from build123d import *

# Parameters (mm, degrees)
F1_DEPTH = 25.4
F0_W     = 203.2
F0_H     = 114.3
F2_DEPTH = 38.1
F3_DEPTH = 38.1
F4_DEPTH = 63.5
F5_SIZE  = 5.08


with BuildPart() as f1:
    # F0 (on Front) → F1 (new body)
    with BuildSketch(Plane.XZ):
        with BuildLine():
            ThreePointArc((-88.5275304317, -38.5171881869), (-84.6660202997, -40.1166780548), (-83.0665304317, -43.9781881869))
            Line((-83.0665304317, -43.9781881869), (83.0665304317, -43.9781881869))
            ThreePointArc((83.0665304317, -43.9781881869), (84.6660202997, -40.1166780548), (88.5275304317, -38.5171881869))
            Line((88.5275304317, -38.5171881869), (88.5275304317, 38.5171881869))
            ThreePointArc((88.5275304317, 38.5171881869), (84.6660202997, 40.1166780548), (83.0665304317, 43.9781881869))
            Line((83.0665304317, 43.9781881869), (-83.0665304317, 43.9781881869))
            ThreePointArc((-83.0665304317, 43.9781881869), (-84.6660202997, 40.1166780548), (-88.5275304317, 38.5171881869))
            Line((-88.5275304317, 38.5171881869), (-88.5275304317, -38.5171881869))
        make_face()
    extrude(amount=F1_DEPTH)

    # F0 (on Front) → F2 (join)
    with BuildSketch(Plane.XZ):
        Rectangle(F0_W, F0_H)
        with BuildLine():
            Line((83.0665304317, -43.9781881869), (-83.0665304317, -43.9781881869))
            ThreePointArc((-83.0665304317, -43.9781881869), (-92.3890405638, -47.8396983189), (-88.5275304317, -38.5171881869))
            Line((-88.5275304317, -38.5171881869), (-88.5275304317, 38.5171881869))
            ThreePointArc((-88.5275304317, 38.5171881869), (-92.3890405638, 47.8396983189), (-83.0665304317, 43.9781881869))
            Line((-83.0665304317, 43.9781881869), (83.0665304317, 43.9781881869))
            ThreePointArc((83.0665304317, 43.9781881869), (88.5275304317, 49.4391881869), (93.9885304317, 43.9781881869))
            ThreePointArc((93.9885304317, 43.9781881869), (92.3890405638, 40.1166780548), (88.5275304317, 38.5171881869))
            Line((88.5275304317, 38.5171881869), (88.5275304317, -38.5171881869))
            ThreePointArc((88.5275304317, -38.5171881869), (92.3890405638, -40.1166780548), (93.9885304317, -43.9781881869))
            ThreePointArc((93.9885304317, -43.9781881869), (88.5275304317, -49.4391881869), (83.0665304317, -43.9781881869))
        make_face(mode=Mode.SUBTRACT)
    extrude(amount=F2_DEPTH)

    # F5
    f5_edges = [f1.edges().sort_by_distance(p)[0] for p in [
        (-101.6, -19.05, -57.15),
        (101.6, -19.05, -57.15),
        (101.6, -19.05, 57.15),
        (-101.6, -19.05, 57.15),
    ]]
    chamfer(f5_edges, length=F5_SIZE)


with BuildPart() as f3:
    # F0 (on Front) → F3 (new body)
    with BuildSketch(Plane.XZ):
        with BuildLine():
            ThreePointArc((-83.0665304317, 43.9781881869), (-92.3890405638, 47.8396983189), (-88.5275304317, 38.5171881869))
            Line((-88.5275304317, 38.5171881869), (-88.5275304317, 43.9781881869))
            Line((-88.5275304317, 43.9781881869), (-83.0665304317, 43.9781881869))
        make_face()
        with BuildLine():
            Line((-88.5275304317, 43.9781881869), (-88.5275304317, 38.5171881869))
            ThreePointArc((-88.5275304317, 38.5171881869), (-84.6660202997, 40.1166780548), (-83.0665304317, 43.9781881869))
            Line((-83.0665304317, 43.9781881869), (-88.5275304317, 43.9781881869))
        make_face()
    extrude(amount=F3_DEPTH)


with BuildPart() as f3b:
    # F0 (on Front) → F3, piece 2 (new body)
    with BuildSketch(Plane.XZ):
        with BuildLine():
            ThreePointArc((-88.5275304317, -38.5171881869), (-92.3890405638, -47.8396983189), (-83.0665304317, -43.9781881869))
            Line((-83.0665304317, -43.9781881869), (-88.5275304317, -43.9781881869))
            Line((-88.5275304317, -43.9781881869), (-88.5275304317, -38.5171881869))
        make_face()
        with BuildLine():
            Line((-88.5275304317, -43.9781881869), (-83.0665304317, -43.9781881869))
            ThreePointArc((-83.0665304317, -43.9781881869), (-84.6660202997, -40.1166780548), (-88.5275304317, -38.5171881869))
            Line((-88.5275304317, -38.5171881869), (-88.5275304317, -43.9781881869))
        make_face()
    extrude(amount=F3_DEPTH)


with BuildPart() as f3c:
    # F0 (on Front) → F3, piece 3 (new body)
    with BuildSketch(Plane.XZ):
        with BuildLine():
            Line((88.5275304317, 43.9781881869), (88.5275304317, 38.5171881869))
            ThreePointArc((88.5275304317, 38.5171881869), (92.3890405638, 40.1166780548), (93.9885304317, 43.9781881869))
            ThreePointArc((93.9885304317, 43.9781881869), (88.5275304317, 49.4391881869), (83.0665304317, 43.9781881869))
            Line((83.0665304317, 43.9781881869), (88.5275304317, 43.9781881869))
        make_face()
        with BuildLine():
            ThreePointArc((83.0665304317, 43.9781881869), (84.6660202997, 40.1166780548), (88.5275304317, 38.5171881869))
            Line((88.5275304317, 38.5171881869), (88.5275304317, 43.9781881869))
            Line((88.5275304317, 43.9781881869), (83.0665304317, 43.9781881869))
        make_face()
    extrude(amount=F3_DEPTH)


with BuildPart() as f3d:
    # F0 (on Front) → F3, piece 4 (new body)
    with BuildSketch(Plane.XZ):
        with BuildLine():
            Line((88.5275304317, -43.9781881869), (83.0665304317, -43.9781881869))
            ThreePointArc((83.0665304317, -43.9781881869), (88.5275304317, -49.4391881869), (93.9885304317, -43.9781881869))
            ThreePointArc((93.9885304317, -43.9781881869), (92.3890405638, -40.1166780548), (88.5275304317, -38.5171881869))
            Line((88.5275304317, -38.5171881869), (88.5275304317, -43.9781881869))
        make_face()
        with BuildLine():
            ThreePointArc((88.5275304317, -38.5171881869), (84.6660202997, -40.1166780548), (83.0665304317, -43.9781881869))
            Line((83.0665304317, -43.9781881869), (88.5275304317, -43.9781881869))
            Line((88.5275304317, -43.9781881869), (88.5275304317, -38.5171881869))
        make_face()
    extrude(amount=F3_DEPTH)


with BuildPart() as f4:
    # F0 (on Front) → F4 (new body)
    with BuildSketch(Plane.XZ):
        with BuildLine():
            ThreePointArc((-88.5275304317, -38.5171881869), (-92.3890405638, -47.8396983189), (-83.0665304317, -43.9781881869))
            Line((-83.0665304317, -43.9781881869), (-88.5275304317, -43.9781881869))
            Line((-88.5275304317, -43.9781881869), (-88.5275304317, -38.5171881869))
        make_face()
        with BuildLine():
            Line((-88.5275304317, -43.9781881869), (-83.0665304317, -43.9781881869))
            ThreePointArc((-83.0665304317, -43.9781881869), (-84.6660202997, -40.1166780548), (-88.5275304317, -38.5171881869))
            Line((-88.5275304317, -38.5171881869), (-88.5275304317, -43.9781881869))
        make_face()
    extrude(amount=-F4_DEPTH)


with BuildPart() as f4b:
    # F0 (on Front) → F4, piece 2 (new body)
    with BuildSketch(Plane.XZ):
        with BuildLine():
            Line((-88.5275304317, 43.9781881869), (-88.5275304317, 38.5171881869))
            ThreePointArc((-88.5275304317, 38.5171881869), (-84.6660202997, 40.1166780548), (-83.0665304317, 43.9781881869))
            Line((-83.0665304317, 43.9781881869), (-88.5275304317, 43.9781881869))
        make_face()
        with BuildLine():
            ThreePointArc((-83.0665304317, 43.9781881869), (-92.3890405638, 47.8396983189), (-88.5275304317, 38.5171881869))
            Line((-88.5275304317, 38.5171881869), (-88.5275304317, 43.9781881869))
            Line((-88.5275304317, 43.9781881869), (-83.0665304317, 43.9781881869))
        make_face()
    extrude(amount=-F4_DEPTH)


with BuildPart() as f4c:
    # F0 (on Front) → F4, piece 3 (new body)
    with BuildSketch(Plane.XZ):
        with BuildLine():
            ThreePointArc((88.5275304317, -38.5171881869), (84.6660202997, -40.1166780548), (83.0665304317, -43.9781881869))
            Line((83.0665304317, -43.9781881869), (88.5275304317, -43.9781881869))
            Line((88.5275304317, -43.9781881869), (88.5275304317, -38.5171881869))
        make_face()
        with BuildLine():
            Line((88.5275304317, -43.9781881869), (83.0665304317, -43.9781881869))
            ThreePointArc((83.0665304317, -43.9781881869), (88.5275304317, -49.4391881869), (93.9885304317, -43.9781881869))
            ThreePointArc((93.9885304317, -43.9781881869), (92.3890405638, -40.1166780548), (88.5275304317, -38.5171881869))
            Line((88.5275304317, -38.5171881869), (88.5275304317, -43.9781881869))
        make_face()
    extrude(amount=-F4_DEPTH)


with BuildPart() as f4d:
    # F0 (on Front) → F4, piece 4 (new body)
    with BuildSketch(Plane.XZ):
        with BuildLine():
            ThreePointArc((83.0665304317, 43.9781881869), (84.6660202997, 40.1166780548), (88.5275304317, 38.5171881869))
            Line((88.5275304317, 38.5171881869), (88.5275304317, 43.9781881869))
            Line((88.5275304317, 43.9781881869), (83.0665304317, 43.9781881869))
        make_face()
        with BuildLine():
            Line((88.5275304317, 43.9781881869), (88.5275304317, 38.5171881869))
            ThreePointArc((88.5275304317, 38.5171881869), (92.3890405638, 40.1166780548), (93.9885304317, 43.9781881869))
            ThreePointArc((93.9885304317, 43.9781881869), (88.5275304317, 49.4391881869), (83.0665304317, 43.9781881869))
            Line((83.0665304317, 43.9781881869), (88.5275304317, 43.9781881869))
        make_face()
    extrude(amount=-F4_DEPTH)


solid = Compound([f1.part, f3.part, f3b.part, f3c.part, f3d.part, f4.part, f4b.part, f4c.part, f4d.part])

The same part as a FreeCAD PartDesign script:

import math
import FreeCAD as App
import Part
import Sketcher
from FreeCAD import Vector
Q = App.Units.Quantity


def edges_at(feature, points):
    """Names of the edges that pass closest to the given points."""
    edges = feature.Shape.Edges
    near = lambda p: min(range(len(edges)), key=lambda i: edges[i].distToShape(Part.Vertex(*p))[0])
    return sorted({f"Edge{near(p) + 1}" for p in points})


def add_polygon(sketch, points):
    """Adds a closed chain of lines whose ends are joined by coincident constraints."""
    first, n = sketch.GeometryCount, len(points)
    for a, b in zip(points, points[1:] + points[:1]):
        sketch.addGeometry(Part.LineSegment(App.Vector(*a, 0), App.Vector(*b, 0)), False)
    for i in range(n):
        sketch.addConstraint(Sketcher.Constraint("Coincident", first + i, 2, first + (i + 1) % n, 1))

doc = App.newDocument("Part")
body = doc.addObject("PartDesign::Body", "Body")

# Sketch on XZ plane
sketch1 = body.newObject("Sketcher::SketchObject", "Sketch")
sketch1.AttachmentSupport = (doc.getObject("XZ_Plane"), [""])
sketch1.MapMode = "FlatFace"
sketch1.addGeometry(Part.ArcOfCircle(Part.Circle(Vector(-89, -44, 0), Vector(0, 0, 1), 5), math.radians(0), math.radians(90)), False)
sketch1.addGeometry(Part.LineSegment(Vector(-83, -44, 0), Vector(83, -44, 0)), False)
sketch1.addGeometry(Part.ArcOfCircle(Part.Circle(Vector(89, -44, 0), Vector(0, 0, 1), 5), math.radians(90), math.radians(180)), False)
sketch1.addGeometry(Part.LineSegment(Vector(89, -39, 0), Vector(89, 39, 0)), False)
sketch1.addGeometry(Part.ArcOfCircle(Part.Circle(Vector(89, 44, 0), Vector(0, 0, 1), 5), math.radians(180), math.radians(270)), False)
sketch1.addGeometry(Part.LineSegment(Vector(83, 44, 0), Vector(-83, 44, 0)), False)
sketch1.addGeometry(Part.ArcOfCircle(Part.Circle(Vector(-89, 44, 0), Vector(0, 0, 1), 5), math.radians(-90), math.radians(0)), False)
sketch1.addGeometry(Part.LineSegment(Vector(-89, 39, 0), Vector(-89, -39, 0)), False)
sketch1.addConstraint(Sketcher.Constraint("Coincident", 0, 1, 1, 1))
sketch1.addConstraint(Sketcher.Constraint("Coincident", 1, 2, 2, 2))
sketch1.addConstraint(Sketcher.Constraint("Coincident", 2, 1, 3, 1))
sketch1.addConstraint(Sketcher.Constraint("Coincident", 3, 2, 4, 2))
sketch1.addConstraint(Sketcher.Constraint("Coincident", 4, 1, 5, 1))
sketch1.addConstraint(Sketcher.Constraint("Coincident", 5, 2, 6, 2))
sketch1.addConstraint(Sketcher.Constraint("Coincident", 6, 1, 7, 1))
sketch1.addConstraint(Sketcher.Constraint("Coincident", 7, 2, 0, 2))
sketch1.addConstraint(Sketcher.Constraint("Horizontal", 1))
sketch1.addConstraint(Sketcher.Constraint("Vertical", 3))
sketch1.addConstraint(Sketcher.Constraint("Horizontal", 5))
sketch1.addConstraint(Sketcher.Constraint("Vertical", 7))
sketch1.addConstraint(Sketcher.Constraint("Equal", 0, 2))
sketch1.addConstraint(Sketcher.Constraint("Equal", 2, 4))
sketch1.addConstraint(Sketcher.Constraint("Equal", 4, 6))
sketch1.addConstraint(Sketcher.Constraint("Symmetric", 0, 3, 4, 3, -1, 1))
sketch1.addConstraint(Sketcher.Constraint("Symmetric", 2, 3, 6, 3, -1, 1))
sketch1.addConstraint(Sketcher.Constraint("Symmetric", 0, 3, 2, 3, -2))
sketch1.addConstraint(Sketcher.Constraint("Horizontal", 2, 3, 0, 1))
sketch1.addConstraint(Sketcher.Constraint("Horizontal", 6, 3, 4, 1))
sketch1.addConstraint(Sketcher.Constraint("Vertical", 4, 3, 2, 1))
sketch1.addConstraint(Sketcher.Constraint("Vertical", 0, 3, 6, 1))
sketch1.addConstraint(Sketcher.Constraint("Radius", 0, Q("0.215 in")))
sketch1.addConstraint(Sketcher.Constraint("DistanceX", 1, 1, 1, 2, 166.133061))
sketch1.addConstraint(Sketcher.Constraint("DistanceY", 3, 1, 3, 2, 77.034376))
pad1 = body.newObject("PartDesign::Pad", "Pad")
pad1.Profile = sketch1
pad1.Length = Q("1 in")

# Sketch on XZ plane
sketch2 = body.newObject("Sketcher::SketchObject", "Sketch001")
sketch2.AttachmentSupport = (doc.getObject("XZ_Plane"), [""])
sketch2.MapMode = "FlatFace"
add_polygon(sketch2, [(-102, 57), (-102, -57), (102, -57), (102, 57)])  # lines 0-3
sketch2.addGeometry(Part.ArcOfCircle(Part.Circle(Vector(89, -44, 0), Vector(0, 0, 1), 5), math.radians(180), math.radians(360)), False)  # 4
sketch2.addGeometry(Part.LineSegment(Vector(83, -44, 0), Vector(-83, -44, 0)), False)  # 5
sketch2.addGeometry(Part.ArcOfCircle(Part.Circle(Vector(-89, -44, 0), Vector(0, 0, 1), 5), math.radians(90), math.radians(360)), False)  # 6
sketch2.addGeometry(Part.LineSegment(Vector(-89, -39, 0), Vector(-89, 39, 0)), False)  # 7
sketch2.addGeometry(Part.ArcOfCircle(Part.Circle(Vector(-89, 44, 0), Vector(0, 0, 1), 5), math.radians(0), math.radians(270)), False)  # 8
sketch2.addGeometry(Part.LineSegment(Vector(-83, 44, 0), Vector(83, 44, 0)), False)  # 9
sketch2.addGeometry(Part.ArcOfCircle(Part.Circle(Vector(89, 44, 0), Vector(0, 0, 1), 5), math.radians(0), math.radians(180)), False)  # 10
sketch2.addGeometry(Part.ArcOfCircle(Part.Circle(Vector(89, 44, 0), Vector(0, 0, 1), 5), math.radians(-90), math.radians(0)), False)  # 11
sketch2.addGeometry(Part.LineSegment(Vector(89, 39, 0), Vector(89, -39, 0)), False)  # 12
sketch2.addGeometry(Part.ArcOfCircle(Part.Circle(Vector(89, -44, 0), Vector(0, 0, 1), 5), math.radians(0), math.radians(90)), False)  # 13
sketch2.addConstraint(Sketcher.Constraint("Coincident", 4, 1, 5, 1))
sketch2.addConstraint(Sketcher.Constraint("Coincident", 5, 2, 6, 2))
sketch2.addConstraint(Sketcher.Constraint("Coincident", 6, 1, 7, 1))
sketch2.addConstraint(Sketcher.Constraint("Coincident", 7, 2, 8, 2))
sketch2.addConstraint(Sketcher.Constraint("Coincident", 8, 1, 9, 1))
sketch2.addConstraint(Sketcher.Constraint("Coincident", 9, 2, 10, 2))
sketch2.addConstraint(Sketcher.Constraint("Tangent", 10, 1, 11, 2))
sketch2.addConstraint(Sketcher.Constraint("Coincident", 11, 1, 12, 1))
sketch2.addConstraint(Sketcher.Constraint("Coincident", 12, 2, 13, 2))
sketch2.addConstraint(Sketcher.Constraint("Tangent", 13, 1, 4, 2))
sketch2.addConstraint(Sketcher.Constraint("Vertical", 0))
sketch2.addConstraint(Sketcher.Constraint("Horizontal", 1))
sketch2.addConstraint(Sketcher.Constraint("Vertical", 2))
sketch2.addConstraint(Sketcher.Constraint("Horizontal", 3))
sketch2.addConstraint(Sketcher.Constraint("Horizontal", 5))
sketch2.addConstraint(Sketcher.Constraint("Vertical", 7))
sketch2.addConstraint(Sketcher.Constraint("Horizontal", 9))
sketch2.addConstraint(Sketcher.Constraint("Vertical", 12))
sketch2.addConstraint(Sketcher.Constraint("Equal", 4, 6))
sketch2.addConstraint(Sketcher.Constraint("Equal", 6, 8))
sketch2.addConstraint(Sketcher.Constraint("Equal", 8, 10))
sketch2.addConstraint(Sketcher.Constraint("Equal", 10, 11))
sketch2.addConstraint(Sketcher.Constraint("Equal", 11, 13))
sketch2.addConstraint(Sketcher.Constraint("Symmetric", 4, 3, 8, 3, -1, 1))
sketch2.addConstraint(Sketcher.Constraint("Symmetric", 6, 3, 10, 3, -1, 1))
sketch2.addConstraint(Sketcher.Constraint("Symmetric", 0, 2, 2, 2, -1, 1))
sketch2.addConstraint(Sketcher.Constraint("Symmetric", 4, 3, 6, 3, -2))
sketch2.addConstraint(Sketcher.Constraint("Horizontal", 13, 3, 4, 1))
sketch2.addConstraint(Sketcher.Constraint("Horizontal", 11, 3, 8, 1))
sketch2.addConstraint(Sketcher.Constraint("Horizontal", 9, 2, 10, 1))
sketch2.addConstraint(Sketcher.Constraint("Horizontal", 5, 2, 13, 1))
sketch2.addConstraint(Sketcher.Constraint("Vertical", 8, 3, 6, 1))
sketch2.addConstraint(Sketcher.Constraint("Vertical", 13, 3, 11, 1))
sketch2.addConstraint(Sketcher.Constraint("DistanceX", 1, 1, 1, 2, Q("8 in")))
sketch2.addConstraint(Sketcher.Constraint("DistanceY", 0, 2, 0, 1, Q("4.5 in")))
sketch2.addConstraint(Sketcher.Constraint("Radius", 4, Q("0.215 in")))
sketch2.addConstraint(Sketcher.Constraint("DistanceX", 5, 2, 5, 1, 166.133061))
sketch2.addConstraint(Sketcher.Constraint("DistanceY", 7, 1, 7, 2, 77.034376))
pad2 = body.newObject("PartDesign::Pad", "Pad001")
pad2.Profile = sketch2
pad2.Length = Q("1.5 in")
doc.recompute()

chamfer = body.newObject("PartDesign::Chamfer", "Chamfer")
chamfer.Base = (pad2, edges_at(pad2, [
    (-101.6, -19.05, -57.15),
    (101.6, -19.05, -57.15),
    (101.6, -19.05, 57.15),
    (-101.6, -19.05, 57.15),
]))
chamfer.Size = Q("0.2 in")
body2 = doc.addObject("PartDesign::Body", "Body001")

# Sketch on XZ plane
sketch3 = body2.newObject("Sketcher::SketchObject", "Sketch002")
sketch3.AttachmentSupport = (doc.getObject("XZ_Plane001"), [""])
sketch3.MapMode = "FlatFace"
sketch3.addGeometry(Part.ArcOfCircle(Part.Circle(Vector(-89, 44, 0), Vector(0, 0, 1), 5), math.radians(0), math.radians(270)), False)
sketch3.addGeometry(Part.ArcOfCircle(Part.Circle(Vector(-89, 44, 0), Vector(0, 0, 1), 5), math.radians(-90), math.radians(0)), False)
sketch3.addConstraint(Sketcher.Constraint("Tangent", 0, 1, 1, 2))
sketch3.addConstraint(Sketcher.Constraint("Coincident", 1, 1, 0, 2))
sketch3.addConstraint(Sketcher.Constraint("Horizontal", 1, 3, 0, 1))
sketch3.addConstraint(Sketcher.Constraint("Vertical", 0, 3, 1, 1))
sketch3.addConstraint(Sketcher.Constraint("Radius", 0, Q("0.215 in")))
sketch3.addConstraint(Sketcher.Constraint("DistanceX", 0, 3, -1, 1, 88.52753))
sketch3.addConstraint(Sketcher.Constraint("DistanceY", -1, 1, 0, 3, 43.978188))
pad3 = body2.newObject("PartDesign::Pad", "Pad002")
pad3.Profile = sketch3
pad3.Length = Q("1.5 in")
body3 = doc.addObject("PartDesign::Body", "Body002")

# Sketch on XZ plane
sketch4 = body3.newObject("Sketcher::SketchObject", "Sketch003")
sketch4.AttachmentSupport = (doc.getObject("XZ_Plane002"), [""])
sketch4.MapMode = "FlatFace"
sketch4.addGeometry(Part.ArcOfCircle(Part.Circle(Vector(-89, -44, 0), Vector(0, 0, 1), 5), math.radians(90), math.radians(360)), False)
sketch4.addGeometry(Part.ArcOfCircle(Part.Circle(Vector(-89, -44, 0), Vector(0, 0, 1), 5), math.radians(0), math.radians(90)), False)
sketch4.addConstraint(Sketcher.Constraint("Tangent", 0, 1, 1, 2))
sketch4.addConstraint(Sketcher.Constraint("Coincident", 1, 1, 0, 2))
sketch4.addConstraint(Sketcher.Constraint("Horizontal", 0, 3, 1, 1))
sketch4.addConstraint(Sketcher.Constraint("Vertical", 1, 3, 0, 1))
sketch4.addConstraint(Sketcher.Constraint("Radius", 0, Q("0.215 in")))
sketch4.addConstraint(Sketcher.Constraint("DistanceX", 0, 3, -1, 1, 88.52753))
sketch4.addConstraint(Sketcher.Constraint("DistanceY", 0, 3, -1, 1, 43.978188))
pad4 = body3.newObject("PartDesign::Pad", "Pad003")
pad4.Profile = sketch4
pad4.Length = Q("1.5 in")
body4 = doc.addObject("PartDesign::Body", "Body003")

# Sketch on XZ plane
sketch5 = body4.newObject("Sketcher::SketchObject", "Sketch004")
sketch5.AttachmentSupport = (doc.getObject("XZ_Plane003"), [""])
sketch5.MapMode = "FlatFace"
sketch5.addGeometry(Part.ArcOfCircle(Part.Circle(Vector(89, 44, 0), Vector(0, 0, 1), 5), math.radians(-90), math.radians(0)), False)
sketch5.addGeometry(Part.ArcOfCircle(Part.Circle(Vector(89, 44, 0), Vector(0, 0, 1), 5), math.radians(0), math.radians(180)), False)
sketch5.addGeometry(Part.ArcOfCircle(Part.Circle(Vector(89, 44, 0), Vector(0, 0, 1), 5), math.radians(180), math.radians(270)), False)
sketch5.addConstraint(Sketcher.Constraint("Tangent", 0, 2, 1, 1))
sketch5.addConstraint(Sketcher.Constraint("Tangent", 1, 2, 2, 1))
sketch5.addConstraint(Sketcher.Constraint("Tangent", 2, 2, 0, 1))
sketch5.addConstraint(Sketcher.Constraint("Horizontal", 2, 3, 0, 2))
sketch5.addConstraint(Sketcher.Constraint("Horizontal", 0, 2, 1, 2))
sketch5.addConstraint(Sketcher.Constraint("Vertical", 1, 3, 2, 2))
sketch5.addConstraint(Sketcher.Constraint("Radius", 0, Q("0.215 in")))
sketch5.addConstraint(Sketcher.Constraint("DistanceX", -1, 1, 0, 3, 88.52753))
sketch5.addConstraint(Sketcher.Constraint("DistanceY", -1, 1, 0, 3, 43.978188))
pad5 = body4.newObject("PartDesign::Pad", "Pad004")
pad5.Profile = sketch5
pad5.Length = Q("1.5 in")
body5 = doc.addObject("PartDesign::Body", "Body004")

# Sketch on XZ plane
sketch6 = body5.newObject("Sketcher::SketchObject", "Sketch005")
sketch6.AttachmentSupport = (doc.getObject("XZ_Plane004"), [""])
sketch6.MapMode = "FlatFace"
sketch6.addGeometry(Part.ArcOfCircle(Part.Circle(Vector(89, -44, 0), Vector(0, 0, 1), 5), math.radians(180), math.radians(360)), False)
sketch6.addGeometry(Part.ArcOfCircle(Part.Circle(Vector(89, -44, 0), Vector(0, 0, 1), 5), math.radians(0), math.radians(90)), False)
sketch6.addGeometry(Part.ArcOfCircle(Part.Circle(Vector(89, -44, 0), Vector(0, 0, 1), 5), math.radians(90), math.radians(180)), False)
sketch6.addConstraint(Sketcher.Constraint("Tangent", 0, 2, 1, 1))
sketch6.addConstraint(Sketcher.Constraint("Tangent", 1, 2, 2, 1))
sketch6.addConstraint(Sketcher.Constraint("Tangent", 2, 2, 0, 1))
sketch6.addConstraint(Sketcher.Constraint("Horizontal", 2, 3, 0, 2))
sketch6.addConstraint(Sketcher.Constraint("Horizontal", 0, 2, 2, 2))
sketch6.addConstraint(Sketcher.Constraint("Vertical", 2, 3, 1, 2))
sketch6.addConstraint(Sketcher.Constraint("Radius", 0, Q("0.215 in")))
sketch6.addConstraint(Sketcher.Constraint("DistanceX", -1, 1, 0, 3, 88.52753))
sketch6.addConstraint(Sketcher.Constraint("DistanceY", 0, 3, -1, 1, 43.978188))
pad6 = body5.newObject("PartDesign::Pad", "Pad005")
pad6.Profile = sketch6
pad6.Length = Q("1.5 in")
body6 = doc.addObject("PartDesign::Body", "Body005")

# Sketch on XZ plane
sketch7 = body6.newObject("Sketcher::SketchObject", "Sketch006")
sketch7.AttachmentSupport = (doc.getObject("XZ_Plane005"), [""])
sketch7.MapMode = "FlatFace"
sketch7.addGeometry(Part.ArcOfCircle(Part.Circle(Vector(-89, -44, 0), Vector(0, 0, 1), 5), math.radians(90), math.radians(360)), False)
sketch7.addGeometry(Part.ArcOfCircle(Part.Circle(Vector(-89, -44, 0), Vector(0, 0, 1), 5), math.radians(0), math.radians(90)), False)
sketch7.addConstraint(Sketcher.Constraint("Tangent", 0, 1, 1, 2))
sketch7.addConstraint(Sketcher.Constraint("Coincident", 1, 1, 0, 2))
sketch7.addConstraint(Sketcher.Constraint("Horizontal", 0, 3, 1, 1))
sketch7.addConstraint(Sketcher.Constraint("Vertical", 1, 3, 0, 1))
sketch7.addConstraint(Sketcher.Constraint("Radius", 0, Q("0.215 in")))
sketch7.addConstraint(Sketcher.Constraint("DistanceX", 0, 3, -1, 1, 88.52753))
sketch7.addConstraint(Sketcher.Constraint("DistanceY", 0, 3, -1, 1, 43.978188))
pad7 = body6.newObject("PartDesign::Pad", "Pad006")
pad7.Profile = sketch7
pad7.Length = Q("2.5 in")
pad7.Reversed = True
body7 = doc.addObject("PartDesign::Body", "Body006")

# Sketch on XZ plane
sketch8 = body7.newObject("Sketcher::SketchObject", "Sketch007")
sketch8.AttachmentSupport = (doc.getObject("XZ_Plane006"), [""])
sketch8.MapMode = "FlatFace"
sketch8.addGeometry(Part.ArcOfCircle(Part.Circle(Vector(-89, 44, 0), Vector(0, 0, 1), 5), math.radians(-90), math.radians(0)), False)
sketch8.addGeometry(Part.ArcOfCircle(Part.Circle(Vector(-89, 44, 0), Vector(0, 0, 1), 5), math.radians(0), math.radians(270)), False)
sketch8.addConstraint(Sketcher.Constraint("Tangent", 0, 1, 1, 2))
sketch8.addConstraint(Sketcher.Constraint("Coincident", 1, 1, 0, 2))
sketch8.addConstraint(Sketcher.Constraint("Horizontal", 0, 3, 1, 1))
sketch8.addConstraint(Sketcher.Constraint("Vertical", 1, 3, 0, 1))
sketch8.addConstraint(Sketcher.Constraint("Radius", 0, Q("0.215 in")))
sketch8.addConstraint(Sketcher.Constraint("DistanceX", 0, 3, -1, 1, 88.52753))
sketch8.addConstraint(Sketcher.Constraint("DistanceY", -1, 1, 0, 3, 43.978188))
pad8 = body7.newObject("PartDesign::Pad", "Pad007")
pad8.Profile = sketch8
pad8.Length = Q("2.5 in")
pad8.Reversed = True
body8 = doc.addObject("PartDesign::Body", "Body007")

# Sketch on XZ plane
sketch9 = body8.newObject("Sketcher::SketchObject", "Sketch008")
sketch9.AttachmentSupport = (doc.getObject("XZ_Plane007"), [""])
sketch9.MapMode = "FlatFace"
sketch9.addGeometry(Part.ArcOfCircle(Part.Circle(Vector(89, -44, 0), Vector(0, 0, 1), 5), math.radians(90), math.radians(180)), False)
sketch9.addGeometry(Part.ArcOfCircle(Part.Circle(Vector(89, -44, 0), Vector(0, 0, 1), 5), math.radians(180), math.radians(360)), False)
sketch9.addGeometry(Part.ArcOfCircle(Part.Circle(Vector(89, -44, 0), Vector(0, 0, 1), 5), math.radians(0), math.radians(90)), False)
sketch9.addConstraint(Sketcher.Constraint("Tangent", 0, 2, 1, 1))
sketch9.addConstraint(Sketcher.Constraint("Tangent", 1, 2, 2, 1))
sketch9.addConstraint(Sketcher.Constraint("Tangent", 2, 2, 0, 1))
sketch9.addConstraint(Sketcher.Constraint("Horizontal", 2, 3, 0, 2))
sketch9.addConstraint(Sketcher.Constraint("Horizontal", 0, 2, 1, 2))
sketch9.addConstraint(Sketcher.Constraint("Vertical", 1, 3, 2, 2))
sketch9.addConstraint(Sketcher.Constraint("Radius", 0, Q("0.215 in")))
sketch9.addConstraint(Sketcher.Constraint("DistanceX", -1, 1, 0, 3, 88.52753))
sketch9.addConstraint(Sketcher.Constraint("DistanceY", 0, 3, -1, 1, 43.978188))
pad9 = body8.newObject("PartDesign::Pad", "Pad008")
pad9.Profile = sketch9
pad9.Length = Q("2.5 in")
pad9.Reversed = True
body9 = doc.addObject("PartDesign::Body", "Body008")

# Sketch on XZ plane
sketch10 = body9.newObject("Sketcher::SketchObject", "Sketch009")
sketch10.AttachmentSupport = (doc.getObject("XZ_Plane008"), [""])
sketch10.MapMode = "FlatFace"
sketch10.addGeometry(Part.ArcOfCircle(Part.Circle(Vector(89, 44, 0), Vector(0, 0, 1), 5), math.radians(180), math.radians(270)), False)
sketch10.addGeometry(Part.ArcOfCircle(Part.Circle(Vector(89, 44, 0), Vector(0, 0, 1), 5), math.radians(-90), math.radians(0)), False)
sketch10.addGeometry(Part.ArcOfCircle(Part.Circle(Vector(89, 44, 0), Vector(0, 0, 1), 5), math.radians(0), math.radians(180)), False)
sketch10.addConstraint(Sketcher.Constraint("Tangent", 0, 2, 1, 1))
sketch10.addConstraint(Sketcher.Constraint("Tangent", 1, 2, 2, 1))
sketch10.addConstraint(Sketcher.Constraint("Tangent", 2, 2, 0, 1))
sketch10.addConstraint(Sketcher.Constraint("Horizontal", 2, 3, 1, 2))
sketch10.addConstraint(Sketcher.Constraint("Horizontal", 1, 2, 2, 2))
sketch10.addConstraint(Sketcher.Constraint("Vertical", 2, 3, 0, 2))
sketch10.addConstraint(Sketcher.Constraint("Radius", 0, Q("0.215 in")))
sketch10.addConstraint(Sketcher.Constraint("DistanceX", -1, 1, 0, 3, 88.52753))
sketch10.addConstraint(Sketcher.Constraint("DistanceY", -1, 1, 0, 3, 43.978188))
pad10 = body9.newObject("PartDesign::Pad", "Pad009")
pad10.Profile = sketch10
pad10.Length = Q("2.5 in")
pad10.Reversed = True

doc.recompute()
